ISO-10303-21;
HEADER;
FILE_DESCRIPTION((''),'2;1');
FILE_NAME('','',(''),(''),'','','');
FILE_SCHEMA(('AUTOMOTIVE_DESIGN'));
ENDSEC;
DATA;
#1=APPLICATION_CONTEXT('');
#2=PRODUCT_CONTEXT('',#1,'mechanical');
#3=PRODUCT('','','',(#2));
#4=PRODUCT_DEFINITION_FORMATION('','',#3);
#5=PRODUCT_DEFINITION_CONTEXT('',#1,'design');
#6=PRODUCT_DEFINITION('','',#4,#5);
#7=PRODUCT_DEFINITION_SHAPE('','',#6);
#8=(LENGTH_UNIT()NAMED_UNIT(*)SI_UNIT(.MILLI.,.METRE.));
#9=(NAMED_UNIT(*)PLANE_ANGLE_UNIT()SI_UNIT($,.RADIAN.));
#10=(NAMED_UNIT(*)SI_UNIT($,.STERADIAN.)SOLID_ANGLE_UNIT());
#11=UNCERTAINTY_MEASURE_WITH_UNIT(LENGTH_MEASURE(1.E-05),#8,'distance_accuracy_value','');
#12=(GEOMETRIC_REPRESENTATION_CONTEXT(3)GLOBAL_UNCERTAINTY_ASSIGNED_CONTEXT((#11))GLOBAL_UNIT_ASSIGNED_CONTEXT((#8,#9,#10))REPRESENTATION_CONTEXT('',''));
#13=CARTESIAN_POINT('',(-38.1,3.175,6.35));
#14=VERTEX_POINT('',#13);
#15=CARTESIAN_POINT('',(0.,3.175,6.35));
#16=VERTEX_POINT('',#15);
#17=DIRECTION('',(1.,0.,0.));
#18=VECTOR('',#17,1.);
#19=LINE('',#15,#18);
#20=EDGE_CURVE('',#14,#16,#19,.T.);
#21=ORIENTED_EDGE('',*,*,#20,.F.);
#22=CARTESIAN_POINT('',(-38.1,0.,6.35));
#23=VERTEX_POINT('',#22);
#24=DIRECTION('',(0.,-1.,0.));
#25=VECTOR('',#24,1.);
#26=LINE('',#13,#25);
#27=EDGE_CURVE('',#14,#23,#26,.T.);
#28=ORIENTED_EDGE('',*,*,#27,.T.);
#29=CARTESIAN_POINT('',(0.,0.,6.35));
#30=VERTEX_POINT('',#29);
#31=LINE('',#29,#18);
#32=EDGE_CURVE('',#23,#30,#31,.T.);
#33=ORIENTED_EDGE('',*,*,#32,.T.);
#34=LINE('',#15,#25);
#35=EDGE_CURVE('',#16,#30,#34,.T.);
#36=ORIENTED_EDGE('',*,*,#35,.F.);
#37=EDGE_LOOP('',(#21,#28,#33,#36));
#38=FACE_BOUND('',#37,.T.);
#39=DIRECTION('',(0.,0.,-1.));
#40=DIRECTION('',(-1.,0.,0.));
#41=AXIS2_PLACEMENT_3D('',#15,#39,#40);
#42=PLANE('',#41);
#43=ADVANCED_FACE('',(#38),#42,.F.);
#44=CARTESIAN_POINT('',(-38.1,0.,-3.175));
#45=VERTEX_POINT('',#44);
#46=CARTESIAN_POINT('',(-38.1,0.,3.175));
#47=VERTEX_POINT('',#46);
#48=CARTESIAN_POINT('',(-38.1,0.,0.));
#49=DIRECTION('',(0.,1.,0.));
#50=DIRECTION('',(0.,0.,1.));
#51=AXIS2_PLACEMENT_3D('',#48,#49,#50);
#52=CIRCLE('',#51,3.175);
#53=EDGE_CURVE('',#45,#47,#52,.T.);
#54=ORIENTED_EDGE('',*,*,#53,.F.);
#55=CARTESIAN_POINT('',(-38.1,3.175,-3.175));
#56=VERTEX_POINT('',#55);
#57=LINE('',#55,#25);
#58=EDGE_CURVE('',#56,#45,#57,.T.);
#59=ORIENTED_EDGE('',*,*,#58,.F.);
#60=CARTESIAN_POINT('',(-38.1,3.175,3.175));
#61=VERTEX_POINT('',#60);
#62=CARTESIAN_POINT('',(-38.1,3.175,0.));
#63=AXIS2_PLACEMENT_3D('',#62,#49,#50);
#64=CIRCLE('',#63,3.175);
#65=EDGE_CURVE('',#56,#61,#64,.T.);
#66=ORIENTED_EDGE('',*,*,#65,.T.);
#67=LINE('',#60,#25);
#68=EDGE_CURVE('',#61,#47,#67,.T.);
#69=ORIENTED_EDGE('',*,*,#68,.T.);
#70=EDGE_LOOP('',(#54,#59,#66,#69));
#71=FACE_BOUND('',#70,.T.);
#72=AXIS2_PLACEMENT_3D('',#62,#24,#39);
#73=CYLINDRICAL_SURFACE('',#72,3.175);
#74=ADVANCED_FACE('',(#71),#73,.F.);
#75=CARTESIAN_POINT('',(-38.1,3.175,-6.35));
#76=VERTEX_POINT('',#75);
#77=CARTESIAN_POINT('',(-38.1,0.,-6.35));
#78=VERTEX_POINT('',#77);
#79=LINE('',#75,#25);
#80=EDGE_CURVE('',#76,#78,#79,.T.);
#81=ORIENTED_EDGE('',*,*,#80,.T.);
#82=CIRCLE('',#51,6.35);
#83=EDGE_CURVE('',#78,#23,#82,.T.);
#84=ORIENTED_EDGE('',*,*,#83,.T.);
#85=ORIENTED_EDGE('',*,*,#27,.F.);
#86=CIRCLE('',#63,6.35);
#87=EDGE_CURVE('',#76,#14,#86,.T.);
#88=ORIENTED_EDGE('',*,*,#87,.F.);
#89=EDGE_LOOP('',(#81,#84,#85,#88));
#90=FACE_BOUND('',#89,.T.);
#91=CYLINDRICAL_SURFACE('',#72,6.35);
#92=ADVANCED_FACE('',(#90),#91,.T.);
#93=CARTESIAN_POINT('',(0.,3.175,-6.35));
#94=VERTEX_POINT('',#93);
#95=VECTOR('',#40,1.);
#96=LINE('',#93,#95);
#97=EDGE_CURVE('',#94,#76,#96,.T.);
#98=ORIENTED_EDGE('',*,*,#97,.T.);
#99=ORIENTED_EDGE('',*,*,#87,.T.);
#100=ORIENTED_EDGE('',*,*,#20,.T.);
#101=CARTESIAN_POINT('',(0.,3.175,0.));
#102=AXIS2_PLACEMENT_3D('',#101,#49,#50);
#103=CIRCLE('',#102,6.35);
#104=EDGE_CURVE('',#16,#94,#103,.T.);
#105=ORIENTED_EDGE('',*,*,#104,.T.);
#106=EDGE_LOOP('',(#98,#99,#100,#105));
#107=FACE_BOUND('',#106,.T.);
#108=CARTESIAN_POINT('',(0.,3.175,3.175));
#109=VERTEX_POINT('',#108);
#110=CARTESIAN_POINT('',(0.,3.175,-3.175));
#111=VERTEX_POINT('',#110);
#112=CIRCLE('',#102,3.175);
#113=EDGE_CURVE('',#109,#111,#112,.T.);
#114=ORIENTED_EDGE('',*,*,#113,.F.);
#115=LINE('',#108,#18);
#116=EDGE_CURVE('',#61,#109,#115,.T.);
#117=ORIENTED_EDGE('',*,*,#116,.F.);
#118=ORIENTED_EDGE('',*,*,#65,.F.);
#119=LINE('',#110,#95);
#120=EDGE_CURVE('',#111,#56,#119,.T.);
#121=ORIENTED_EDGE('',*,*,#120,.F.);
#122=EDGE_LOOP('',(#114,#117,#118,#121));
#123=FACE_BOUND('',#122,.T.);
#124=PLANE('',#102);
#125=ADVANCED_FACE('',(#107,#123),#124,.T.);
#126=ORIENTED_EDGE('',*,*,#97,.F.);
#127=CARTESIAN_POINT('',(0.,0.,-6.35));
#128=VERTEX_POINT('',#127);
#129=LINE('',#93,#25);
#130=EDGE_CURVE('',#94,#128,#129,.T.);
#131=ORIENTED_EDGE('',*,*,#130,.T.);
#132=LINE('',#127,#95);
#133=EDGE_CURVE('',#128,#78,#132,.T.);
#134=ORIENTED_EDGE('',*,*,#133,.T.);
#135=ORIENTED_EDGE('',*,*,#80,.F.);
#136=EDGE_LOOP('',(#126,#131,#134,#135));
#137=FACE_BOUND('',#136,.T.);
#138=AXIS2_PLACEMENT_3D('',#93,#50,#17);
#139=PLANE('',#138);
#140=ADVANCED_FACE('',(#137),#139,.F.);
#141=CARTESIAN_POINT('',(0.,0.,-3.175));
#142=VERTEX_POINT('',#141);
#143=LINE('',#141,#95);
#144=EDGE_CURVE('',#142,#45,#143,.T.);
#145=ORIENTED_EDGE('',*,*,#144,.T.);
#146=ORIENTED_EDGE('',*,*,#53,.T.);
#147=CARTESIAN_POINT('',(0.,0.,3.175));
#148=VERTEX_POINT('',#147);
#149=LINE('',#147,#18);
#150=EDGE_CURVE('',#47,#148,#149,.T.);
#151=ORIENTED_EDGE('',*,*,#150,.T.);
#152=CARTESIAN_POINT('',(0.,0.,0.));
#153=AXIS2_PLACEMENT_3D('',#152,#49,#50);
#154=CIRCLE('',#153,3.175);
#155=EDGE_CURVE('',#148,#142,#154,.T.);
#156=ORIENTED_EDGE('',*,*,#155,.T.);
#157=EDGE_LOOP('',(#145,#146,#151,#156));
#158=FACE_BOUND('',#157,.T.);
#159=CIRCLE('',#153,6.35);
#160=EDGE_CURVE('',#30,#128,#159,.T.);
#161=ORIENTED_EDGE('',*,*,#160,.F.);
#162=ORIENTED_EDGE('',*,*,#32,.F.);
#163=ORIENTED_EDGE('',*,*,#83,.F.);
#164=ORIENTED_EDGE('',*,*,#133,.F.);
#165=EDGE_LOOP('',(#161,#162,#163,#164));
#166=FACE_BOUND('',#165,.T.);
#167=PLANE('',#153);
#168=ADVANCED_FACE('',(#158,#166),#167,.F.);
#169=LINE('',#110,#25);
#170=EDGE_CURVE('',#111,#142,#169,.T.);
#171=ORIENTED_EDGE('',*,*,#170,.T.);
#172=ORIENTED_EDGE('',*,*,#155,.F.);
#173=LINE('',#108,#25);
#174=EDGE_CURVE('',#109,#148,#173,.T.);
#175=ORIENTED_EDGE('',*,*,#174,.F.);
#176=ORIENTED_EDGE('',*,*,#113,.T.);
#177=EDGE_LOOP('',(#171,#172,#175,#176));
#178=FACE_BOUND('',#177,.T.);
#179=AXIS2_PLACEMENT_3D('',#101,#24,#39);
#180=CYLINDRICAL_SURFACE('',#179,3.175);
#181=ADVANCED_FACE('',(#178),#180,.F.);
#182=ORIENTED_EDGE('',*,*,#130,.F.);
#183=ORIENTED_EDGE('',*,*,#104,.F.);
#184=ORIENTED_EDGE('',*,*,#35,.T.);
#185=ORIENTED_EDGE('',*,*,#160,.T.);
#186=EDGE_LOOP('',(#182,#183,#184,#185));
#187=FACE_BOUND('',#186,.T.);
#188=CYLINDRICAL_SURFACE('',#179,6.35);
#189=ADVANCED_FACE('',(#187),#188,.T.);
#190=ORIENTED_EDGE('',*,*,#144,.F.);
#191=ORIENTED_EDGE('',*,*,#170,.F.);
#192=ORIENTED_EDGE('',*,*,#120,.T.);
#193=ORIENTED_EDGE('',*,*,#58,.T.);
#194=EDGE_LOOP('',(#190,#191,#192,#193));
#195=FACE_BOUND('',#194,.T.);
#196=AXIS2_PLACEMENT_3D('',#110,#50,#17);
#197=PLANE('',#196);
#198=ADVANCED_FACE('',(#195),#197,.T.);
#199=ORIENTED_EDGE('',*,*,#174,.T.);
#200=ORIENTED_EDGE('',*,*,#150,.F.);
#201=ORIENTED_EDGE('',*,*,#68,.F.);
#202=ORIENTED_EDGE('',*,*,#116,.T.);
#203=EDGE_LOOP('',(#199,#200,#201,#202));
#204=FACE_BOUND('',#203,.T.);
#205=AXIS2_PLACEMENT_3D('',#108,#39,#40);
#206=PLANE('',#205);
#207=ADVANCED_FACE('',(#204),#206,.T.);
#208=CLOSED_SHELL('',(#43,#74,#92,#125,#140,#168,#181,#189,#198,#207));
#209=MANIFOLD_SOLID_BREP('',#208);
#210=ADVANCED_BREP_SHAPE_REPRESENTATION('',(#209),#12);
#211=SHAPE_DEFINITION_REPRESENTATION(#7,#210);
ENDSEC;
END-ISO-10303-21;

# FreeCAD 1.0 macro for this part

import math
import FreeCAD as App
import Part
import Sketcher

V = App.Vector
Q = App.Units.Quantity

doc = App.newDocument("Part")
params = doc.addObject("Spreadsheet::Sheet", "Params")
for row, (alias, value) in enumerate([
    ("sketch1_radius", "0.25 in"),
    ("sketch1_width", "1.5 in"),
    ("sketch1_radius2", "0.125 in"),
    ("pad1_length", "0.125 in"),
], start=1):
    params.set(f"A{row}", alias)
    params.set(f"B{row}", "=" + value)
    params.setAlias(f"B{row}", alias)

body = doc.addObject("PartDesign::Body", "Body")

# Sketch on XZ plane
sketch1 = body.newObject("Sketcher::SketchObject", "Sketch")
sketch1.AttachmentSupport = (doc.getObject("XZ_Plane"), [""])
sketch1.MapMode = "FlatFace"
sketch1.addGeometry([
    Part.LineSegment(V(-38.1, 6.3, 0), V(0, 6.3, 0)),  # 0
    Part.ArcOfCircle(Part.Circle(V(0, 0, 0), V(0, 0, 1), 6.3), math.radians(-90), math.radians(90)),  # 1
    Part.LineSegment(V(0, -6.3, 0), V(-38.1, -6.3, 0)),  # 2
    Part.ArcOfCircle(Part.Circle(V(-38.1, 0, 0), V(0, 0, 1), 6.3), math.radians(90), math.radians(270)),  # 3
    Part.LineSegment(V(0, 3.2, 0), V(-38.1, 3.2, 0)),  # 4
    Part.ArcOfCircle(Part.Circle(V(-38.1, 0, 0), V(0, 0, 1), 3.2), math.radians(90), math.radians(270)),  # 5
    Part.LineSegment(V(-38.1, -3.2, 0), V(0, -3.2, 0)),  # 6
    Part.ArcOfCircle(Part.Circle(V(0, 0, 0), V(0, 0, 1), 3.2), math.radians(-90), math.radians(90)),  # 7
], False)
sketch1.addConstraint([
    Sketcher.Constraint("Tangent", 0, 2, 1, 2),
    Sketcher.Constraint("Tangent", 1, 1, 2, 1),
    Sketcher.Constraint("Tangent", 2, 2, 3, 2),
    Sketcher.Constraint("Tangent", 3, 1, 0, 1),
    Sketcher.Constraint("Tangent", 4, 2, 5, 1),
    Sketcher.Constraint("Tangent", 5, 2, 6, 1),
    Sketcher.Constraint("Tangent", 6, 2, 7, 1),
    Sketcher.Constraint("Tangent", 7, 2, 4, 1),
    Sketcher.Constraint("Horizontal", 0),
    Sketcher.Constraint("Horizontal", 2),
    Sketcher.Constraint("Horizontal", 4),
    Sketcher.Constraint("Horizontal", 6),
    Sketcher.Constraint("Coincident", 1, 3, -1, 1),
    Sketcher.Constraint("Coincident", 7, 3, -1, 1),
    Sketcher.Constraint("Vertical", 5, 3, 2, 2),
    Sketcher.Constraint("Radius", 1, Q("0.25 in")),
    Sketcher.Constraint("DistanceX", 0, 1, 0, 2, Q("1.5 in")),
    Sketcher.Constraint("Radius", 5, Q("0.125 in")),
])
sketch1.setExpression("Constraints[15]", "Params.sketch1_radius")
sketch1.setExpression("Constraints[16]", "Params.sketch1_width")
sketch1.setExpression("Constraints[17]", "Params.sketch1_radius2")
pad1 = body.newObject("PartDesign::Pad", "Pad")
pad1.Profile = sketch1
pad1.setExpression("Length", "Params.pad1_length")
pad1.Reversed = True

doc.recompute()
